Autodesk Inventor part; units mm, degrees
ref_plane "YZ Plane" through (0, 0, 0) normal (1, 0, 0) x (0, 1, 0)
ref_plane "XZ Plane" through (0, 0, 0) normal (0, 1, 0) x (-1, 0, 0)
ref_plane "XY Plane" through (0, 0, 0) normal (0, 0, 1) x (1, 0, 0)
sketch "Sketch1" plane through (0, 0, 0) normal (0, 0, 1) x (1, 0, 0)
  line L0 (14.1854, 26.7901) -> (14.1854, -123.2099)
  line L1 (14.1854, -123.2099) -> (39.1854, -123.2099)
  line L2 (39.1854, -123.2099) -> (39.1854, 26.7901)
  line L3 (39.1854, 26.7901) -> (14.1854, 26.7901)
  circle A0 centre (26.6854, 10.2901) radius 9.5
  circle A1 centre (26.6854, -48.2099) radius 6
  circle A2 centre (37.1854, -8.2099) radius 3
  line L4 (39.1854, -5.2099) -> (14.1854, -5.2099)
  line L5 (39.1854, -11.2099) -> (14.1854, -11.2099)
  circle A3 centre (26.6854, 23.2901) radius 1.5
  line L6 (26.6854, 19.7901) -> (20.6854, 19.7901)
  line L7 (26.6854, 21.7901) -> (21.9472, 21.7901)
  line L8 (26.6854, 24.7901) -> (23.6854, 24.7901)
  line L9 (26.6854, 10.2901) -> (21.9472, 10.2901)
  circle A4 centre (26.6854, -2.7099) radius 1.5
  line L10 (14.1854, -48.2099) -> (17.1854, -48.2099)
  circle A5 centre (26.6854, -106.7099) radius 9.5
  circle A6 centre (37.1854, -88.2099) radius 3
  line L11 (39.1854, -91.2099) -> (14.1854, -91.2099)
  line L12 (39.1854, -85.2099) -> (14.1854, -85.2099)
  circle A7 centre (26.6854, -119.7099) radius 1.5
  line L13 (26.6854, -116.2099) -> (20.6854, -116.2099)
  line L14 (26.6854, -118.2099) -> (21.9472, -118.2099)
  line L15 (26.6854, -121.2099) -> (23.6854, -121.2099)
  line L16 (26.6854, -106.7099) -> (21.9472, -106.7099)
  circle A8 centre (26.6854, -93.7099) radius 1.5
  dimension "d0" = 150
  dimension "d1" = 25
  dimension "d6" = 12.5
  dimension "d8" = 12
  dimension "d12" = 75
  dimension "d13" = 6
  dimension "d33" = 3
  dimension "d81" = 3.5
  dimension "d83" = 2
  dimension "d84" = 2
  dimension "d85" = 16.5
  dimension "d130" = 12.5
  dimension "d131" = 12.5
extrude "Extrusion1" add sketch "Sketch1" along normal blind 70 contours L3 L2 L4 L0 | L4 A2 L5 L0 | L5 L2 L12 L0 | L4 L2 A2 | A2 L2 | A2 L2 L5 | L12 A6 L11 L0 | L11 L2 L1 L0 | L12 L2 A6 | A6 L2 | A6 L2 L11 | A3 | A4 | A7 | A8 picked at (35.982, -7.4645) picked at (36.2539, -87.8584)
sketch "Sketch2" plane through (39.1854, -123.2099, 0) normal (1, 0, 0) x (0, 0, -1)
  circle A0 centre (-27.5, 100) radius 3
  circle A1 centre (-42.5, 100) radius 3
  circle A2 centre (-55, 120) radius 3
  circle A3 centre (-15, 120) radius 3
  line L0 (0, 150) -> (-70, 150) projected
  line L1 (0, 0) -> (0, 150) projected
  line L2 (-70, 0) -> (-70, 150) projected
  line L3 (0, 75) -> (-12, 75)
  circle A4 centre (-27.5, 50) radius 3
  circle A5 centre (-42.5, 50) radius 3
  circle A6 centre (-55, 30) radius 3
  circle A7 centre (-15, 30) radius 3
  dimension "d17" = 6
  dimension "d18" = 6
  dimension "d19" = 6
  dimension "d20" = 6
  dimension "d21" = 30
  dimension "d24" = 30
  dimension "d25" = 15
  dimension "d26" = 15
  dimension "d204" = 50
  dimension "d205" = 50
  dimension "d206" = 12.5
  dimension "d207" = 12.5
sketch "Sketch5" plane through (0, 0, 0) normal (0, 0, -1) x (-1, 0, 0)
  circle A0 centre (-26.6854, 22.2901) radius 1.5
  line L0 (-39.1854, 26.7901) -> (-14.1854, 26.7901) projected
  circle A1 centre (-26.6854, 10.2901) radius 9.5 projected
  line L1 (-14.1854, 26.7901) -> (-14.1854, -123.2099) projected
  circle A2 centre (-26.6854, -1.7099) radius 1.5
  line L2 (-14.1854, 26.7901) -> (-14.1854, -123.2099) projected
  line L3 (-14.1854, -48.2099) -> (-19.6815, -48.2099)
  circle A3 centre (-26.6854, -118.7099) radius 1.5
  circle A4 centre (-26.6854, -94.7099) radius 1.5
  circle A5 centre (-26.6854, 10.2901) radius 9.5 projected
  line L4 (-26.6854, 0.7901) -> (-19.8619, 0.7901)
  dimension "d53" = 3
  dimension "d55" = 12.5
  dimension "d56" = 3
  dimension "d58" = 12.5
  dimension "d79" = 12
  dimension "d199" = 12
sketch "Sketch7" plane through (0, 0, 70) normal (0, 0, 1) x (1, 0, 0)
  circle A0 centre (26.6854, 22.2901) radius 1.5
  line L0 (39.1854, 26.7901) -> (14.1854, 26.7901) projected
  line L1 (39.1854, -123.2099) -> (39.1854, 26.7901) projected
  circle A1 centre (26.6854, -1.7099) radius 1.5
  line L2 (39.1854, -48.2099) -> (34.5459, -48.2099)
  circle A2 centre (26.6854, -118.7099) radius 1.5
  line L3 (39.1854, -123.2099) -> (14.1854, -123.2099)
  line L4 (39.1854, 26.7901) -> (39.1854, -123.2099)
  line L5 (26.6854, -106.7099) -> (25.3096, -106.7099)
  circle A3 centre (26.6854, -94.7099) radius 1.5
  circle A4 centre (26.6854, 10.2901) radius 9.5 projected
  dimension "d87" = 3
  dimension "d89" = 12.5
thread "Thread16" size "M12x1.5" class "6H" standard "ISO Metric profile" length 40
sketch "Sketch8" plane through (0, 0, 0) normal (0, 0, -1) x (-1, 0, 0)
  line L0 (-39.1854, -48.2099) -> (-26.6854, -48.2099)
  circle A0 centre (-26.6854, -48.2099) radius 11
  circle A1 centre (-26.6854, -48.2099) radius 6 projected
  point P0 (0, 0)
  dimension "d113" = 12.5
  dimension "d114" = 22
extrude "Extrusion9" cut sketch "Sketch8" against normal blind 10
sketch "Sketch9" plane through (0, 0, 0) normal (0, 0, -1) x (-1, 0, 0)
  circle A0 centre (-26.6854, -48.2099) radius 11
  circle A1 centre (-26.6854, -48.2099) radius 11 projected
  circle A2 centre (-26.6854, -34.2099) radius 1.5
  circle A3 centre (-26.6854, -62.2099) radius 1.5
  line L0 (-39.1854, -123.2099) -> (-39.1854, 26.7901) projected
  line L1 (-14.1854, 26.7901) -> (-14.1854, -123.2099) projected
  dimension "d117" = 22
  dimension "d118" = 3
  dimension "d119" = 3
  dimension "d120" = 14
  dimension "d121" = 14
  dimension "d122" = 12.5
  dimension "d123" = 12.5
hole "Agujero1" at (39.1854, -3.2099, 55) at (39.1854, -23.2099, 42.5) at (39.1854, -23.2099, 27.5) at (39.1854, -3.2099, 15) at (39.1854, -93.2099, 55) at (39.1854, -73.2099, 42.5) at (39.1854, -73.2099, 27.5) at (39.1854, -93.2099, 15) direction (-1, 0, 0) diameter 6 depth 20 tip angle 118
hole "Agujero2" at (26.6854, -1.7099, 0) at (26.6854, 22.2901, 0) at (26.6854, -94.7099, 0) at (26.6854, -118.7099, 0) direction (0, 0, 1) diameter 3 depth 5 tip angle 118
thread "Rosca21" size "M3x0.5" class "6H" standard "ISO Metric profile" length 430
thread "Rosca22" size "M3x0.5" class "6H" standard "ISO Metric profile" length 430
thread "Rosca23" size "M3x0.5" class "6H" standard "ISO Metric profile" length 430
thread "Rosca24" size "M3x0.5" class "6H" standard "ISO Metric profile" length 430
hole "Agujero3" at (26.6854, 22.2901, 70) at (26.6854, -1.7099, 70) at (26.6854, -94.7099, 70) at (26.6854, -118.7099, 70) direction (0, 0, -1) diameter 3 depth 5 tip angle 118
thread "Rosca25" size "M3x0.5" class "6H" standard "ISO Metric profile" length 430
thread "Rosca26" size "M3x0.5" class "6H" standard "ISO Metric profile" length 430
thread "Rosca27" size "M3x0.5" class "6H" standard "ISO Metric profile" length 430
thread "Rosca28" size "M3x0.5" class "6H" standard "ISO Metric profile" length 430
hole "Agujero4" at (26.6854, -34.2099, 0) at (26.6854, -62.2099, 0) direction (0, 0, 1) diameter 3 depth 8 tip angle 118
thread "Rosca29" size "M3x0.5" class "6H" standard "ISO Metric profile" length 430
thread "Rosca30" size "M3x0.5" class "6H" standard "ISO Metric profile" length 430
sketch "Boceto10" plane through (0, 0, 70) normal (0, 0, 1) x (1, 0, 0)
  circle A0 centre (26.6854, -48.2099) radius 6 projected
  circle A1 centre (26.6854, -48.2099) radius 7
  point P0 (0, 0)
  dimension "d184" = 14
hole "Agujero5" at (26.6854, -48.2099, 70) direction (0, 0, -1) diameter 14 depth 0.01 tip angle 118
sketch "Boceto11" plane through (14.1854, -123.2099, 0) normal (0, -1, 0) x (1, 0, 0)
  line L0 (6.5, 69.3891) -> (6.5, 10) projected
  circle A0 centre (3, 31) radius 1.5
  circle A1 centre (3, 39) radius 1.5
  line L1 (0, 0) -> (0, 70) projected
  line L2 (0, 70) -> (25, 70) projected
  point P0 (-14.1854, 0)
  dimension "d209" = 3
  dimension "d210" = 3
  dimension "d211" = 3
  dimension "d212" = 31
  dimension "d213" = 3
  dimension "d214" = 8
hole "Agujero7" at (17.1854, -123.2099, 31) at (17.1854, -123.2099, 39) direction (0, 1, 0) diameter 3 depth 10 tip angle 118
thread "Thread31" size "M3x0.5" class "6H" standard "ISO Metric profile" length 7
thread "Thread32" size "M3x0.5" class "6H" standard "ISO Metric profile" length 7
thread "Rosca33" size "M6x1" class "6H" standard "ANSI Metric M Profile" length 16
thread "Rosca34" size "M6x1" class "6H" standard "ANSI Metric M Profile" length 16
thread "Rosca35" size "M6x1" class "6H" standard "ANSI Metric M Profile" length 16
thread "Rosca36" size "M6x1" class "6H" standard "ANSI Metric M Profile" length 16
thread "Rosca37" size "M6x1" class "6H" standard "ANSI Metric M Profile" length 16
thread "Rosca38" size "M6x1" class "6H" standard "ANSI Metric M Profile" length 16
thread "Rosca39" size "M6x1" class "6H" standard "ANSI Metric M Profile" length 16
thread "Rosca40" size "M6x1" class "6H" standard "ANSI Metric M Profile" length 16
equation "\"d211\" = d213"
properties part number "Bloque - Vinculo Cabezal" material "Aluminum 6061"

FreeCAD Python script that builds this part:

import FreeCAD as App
import Part
import Sketcher
Q = App.Units.Quantity


def add_polygon(sketch, points):
    """Adds a closed chain of lines whose ends are joined by coincident constraints."""
    first, n = sketch.GeometryCount, len(points)
    for a, b in zip(points, points[1:] + points[:1]):
        sketch.addGeometry(Part.LineSegment(App.Vector(*a, 0), App.Vector(*b, 0)), False)
    for i in range(n):
        sketch.addConstraint(Sketcher.Constraint("Coincident", first + i, 2, first + (i + 1) % n, 1))

doc = App.newDocument("Part")
body = doc.addObject("PartDesign::Body", "Body")

sketch1 = body.newObject("Sketcher::SketchObject", "Sketch")
sketch1.AttachmentSupport = (doc.getObject("XY_Plane"), [""])
sketch1.MapMode = "FlatFace"
add_polygon(sketch1, [(39, 27), (14, 27), (14, -123), (39, -123)])
sketch1.addGeometry(Part.Circle(App.Vector(27, 10, 0), App.Vector(0, 0, 1), 10), False)
sketch1.addGeometry(Part.Circle(App.Vector(27, -48, 0), App.Vector(0, 0, 1), 6), False)
sketch1.addGeometry(Part.Circle(App.Vector(27, -107, 0), App.Vector(0, 0, 1), 10), False)
sketch1.addConstraint(Sketcher.Constraint("Horizontal", 0))
sketch1.addConstraint(Sketcher.Constraint("Vertical", 1))
sketch1.addConstraint(Sketcher.Constraint("Horizontal", 2))
sketch1.addConstraint(Sketcher.Constraint("Vertical", 3))
sketch1.addConstraint(Sketcher.Constraint("Equal", 4, 6))
sketch1.addConstraint(Sketcher.Constraint("Vertical", 4, 3, 5, 3))
sketch1.addConstraint(Sketcher.Constraint("Vertical", 5, 3, 6, 3))
sketch1.addConstraint(Sketcher.Constraint("Diameter", 5, Q("12 mm")))
sketch1.addConstraint(Sketcher.Constraint("DistanceX", 0, 2, 0, 1, Q("25 mm")))
sketch1.addConstraint(Sketcher.Constraint("DistanceY", 1, 2, 1, 1, Q("150 mm")))
sketch1.addConstraint(Sketcher.Constraint("Diameter", 4, Q("19 mm")))
sketch1.addConstraint(Sketcher.Constraint("DistanceY", 5, 3, 0, 2, Q("75 mm")))
sketch1.addConstraint(Sketcher.Constraint("DistanceX", 0, 2, 4, 3, Q("12.5 mm")))
sketch1.addConstraint(Sketcher.Constraint("DistanceY", 4, 3, 0, 2, Q("16.5 mm")))
sketch1.addConstraint(Sketcher.Constraint("DistanceY", 1, 2, 6, 3, Q("16.5 mm")))
sketch1.addConstraint(Sketcher.Constraint("DistanceY", -1, 1, 4, 3, Q("10.29 mm")))
sketch1.addConstraint(Sketcher.Constraint("DistanceX", -1, 1, 4, 3, Q("26.6854 mm")))
pad1 = body.newObject("PartDesign::Pad", "Pad")
pad1.Profile = sketch1
pad1.Length = 70

sketch2 = body.newObject("Sketcher::SketchObject", "Sketch001")
sketch2.AttachmentSupport = (doc.getObject("XY_Plane"), [""])
sketch2.MapMode = "FlatFace"
sketch2.addGeometry(Part.Circle(App.Vector(27, -48, 0), App.Vector(0, 0, 1), 11), False)
sketch2.addGeometry(Part.Circle(App.Vector(27, -48, 0), App.Vector(0, 0, 1), 6), False)
sketch2.addConstraint(Sketcher.Constraint("Coincident", 1, 3, 0, 3))
sketch2.addConstraint(Sketcher.Constraint("Diameter", 0, Q("22 mm")))
sketch2.addConstraint(Sketcher.Constraint("Diameter", 1, Q("12 mm")))
sketch2.addConstraint(Sketcher.Constraint("DistanceY", 0, 3, -1, 1, Q("48.21 mm")))
sketch2.addConstraint(Sketcher.Constraint("DistanceX", -1, 1, 0, 3, Q("26.6854 mm")))
pocket1 = body.newObject("PartDesign::Pocket", "Pocket")
pocket1.Profile = sketch2
pocket1.Length = 10
pocket1.Reversed = True

sketch3 = body.newObject("Sketcher::SketchObject", "Sketch002")
sketch3.AttachmentSupport = (doc.getObject("YZ_Plane"), [""])
sketch3.MapMode = "FlatFace"
sketch3.AttachmentOffset = App.Placement(App.Vector(0, 0, 39.1854), App.Rotation())
sketch3.addGeometry(Part.Circle(App.Vector(-3.2, 55, 0), App.Vector(0, 0, 1), 3), False)
sketch3.addGeometry(Part.Circle(App.Vector(-23.2, 42.5, 0), App.Vector(0, 0, 1), 3), False)
sketch3.addGeometry(Part.Circle(App.Vector(-23.2, 27.5, 0), App.Vector(0, 0, 1), 3), False)
sketch3.addGeometry(Part.Circle(App.Vector(-3.2, 15, 0), App.Vector(0, 0, 1), 3), False)
sketch3.addGeometry(Part.Circle(App.Vector(-93.2, 55, 0), App.Vector(0, 0, 1), 3), False)
sketch3.addGeometry(Part.Circle(App.Vector(-73.2, 42.5, 0), App.Vector(0, 0, 1), 3), False)
sketch3.addGeometry(Part.Circle(App.Vector(-73.2, 27.5, 0), App.Vector(0, 0, 1), 3), False)
sketch3.addGeometry(Part.Circle(App.Vector(-93.2, 15, 0), App.Vector(0, 0, 1), 3), False)
sketch3.addConstraint(Sketcher.Constraint("Equal", 0, 1))
sketch3.addConstraint(Sketcher.Constraint("Equal", 1, 2))
sketch3.addConstraint(Sketcher.Constraint("Equal", 2, 3))
sketch3.addConstraint(Sketcher.Constraint("Equal", 3, 4))
sketch3.addConstraint(Sketcher.Constraint("Equal", 4, 5))
sketch3.addConstraint(Sketcher.Constraint("Equal", 5, 6))
sketch3.addConstraint(Sketcher.Constraint("Equal", 6, 7))
sketch3.addConstraint(Sketcher.Constraint("Horizontal", 0, 3, 4, 3))
sketch3.addConstraint(Sketcher.Constraint("Horizontal", 1, 3, 5, 3))
sketch3.addConstraint(Sketcher.Constraint("Horizontal", 2, 3, 6, 3))
sketch3.addConstraint(Sketcher.Constraint("Horizontal", 3, 3, 7, 3))
sketch3.addConstraint(Sketcher.Constraint("Vertical", 1, 3, 2, 3))
sketch3.addConstraint(Sketcher.Constraint("Vertical", 0, 3, 3, 3))
sketch3.addConstraint(Sketcher.Constraint("Vertical", 5, 3, 6, 3))
sketch3.addConstraint(Sketcher.Constraint("Vertical", 4, 3, 7, 3))
sketch3.addConstraint(Sketcher.Constraint("Diameter", 0, Q("6 mm")))
sketch3.addConstraint(Sketcher.Constraint("DistanceY", -1, 1, 0, 3, Q("55 mm")))
sketch3.addConstraint(Sketcher.Constraint("DistanceY", -1, 1, 3, 3, Q("15 mm")))
sketch3.addConstraint(Sketcher.Constraint("DistanceX", 1, 3, 0, 3, Q("20 mm")))
sketch3.addConstraint(Sketcher.Constraint("DistanceY", 2, 3, 1, 3, Q("15 mm")))
sketch3.addConstraint(Sketcher.Constraint("DistanceX", 4, 3, 1, 3, Q("70 mm")))
sketch3.addConstraint(Sketcher.Constraint("DistanceX", 4, 3, 5, 3, Q("20 mm")))
sketch3.addConstraint(Sketcher.Constraint("DistanceY", -1, 1, 1, 3, Q("42.5 mm")))
sketch3.addConstraint(Sketcher.Constraint("DistanceX", 0, 3, -1, 1, Q("3.21 mm")))
doc.recompute()
hole = body.newObject("PartDesign::Hole", "Hole")
hole.Profile = sketch3
hole.ThreadType = "None"
hole.Diameter = 6
hole.DepthType = "Dimension"
hole.Depth = 20
hole.DrillPoint = "Angled"
hole.DrillPointAngle = 118

sketch4 = body.newObject("Sketcher::SketchObject", "Sketch003")
sketch4.AttachmentSupport = (doc.getObject("XY_Plane"), [""])
sketch4.MapMode = "FlatFace"
sketch4.addGeometry(Part.Circle(App.Vector(26.7, -1.7, 0), App.Vector(0, 0, 1), 1.5), False)
sketch4.addGeometry(Part.Circle(App.Vector(26.7, 22.3, 0), App.Vector(0, 0, 1), 1.5), False)
sketch4.addGeometry(Part.Circle(App.Vector(26.7, -94.7, 0), App.Vector(0, 0, 1), 1.5), False)
sketch4.addGeometry(Part.Circle(App.Vector(26.7, -118.7, 0), App.Vector(0, 0, 1), 1.5), False)
sketch4.addConstraint(Sketcher.Constraint("Equal", 0, 1))
sketch4.addConstraint(Sketcher.Constraint("Equal", 1, 2))
sketch4.addConstraint(Sketcher.Constraint("Equal", 2, 3))
sketch4.addConstraint(Sketcher.Constraint("Vertical", 0, 3, 1, 3))
sketch4.addConstraint(Sketcher.Constraint("Vertical", 1, 3, 2, 3))
sketch4.addConstraint(Sketcher.Constraint("Vertical", 2, 3, 3, 3))
sketch4.addConstraint(Sketcher.Constraint("Diameter", 0, Q("3 mm")))
sketch4.addConstraint(Sketcher.Constraint("DistanceY", 0, 3, 1, 3, Q("24 mm")))
sketch4.addConstraint(Sketcher.Constraint("DistanceY", 2, 3, 0, 3, Q("93 mm")))
sketch4.addConstraint(Sketcher.Constraint("DistanceY", 3, 3, 2, 3, Q("24 mm")))
sketch4.addConstraint(Sketcher.Constraint("DistanceY", 0, 3, -1, 1, Q("1.71 mm")))
sketch4.addConstraint(Sketcher.Constraint("DistanceX", -1, 1, 0, 3, Q("26.6854 mm")))
doc.recompute()
hole2 = body.newObject("PartDesign::Hole", "Hole001")
hole2.Profile = sketch4
hole2.ThreadType = "None"
hole2.Diameter = 3
hole2.DepthType = "Dimension"
hole2.Depth = 5
hole2.DrillPoint = "Angled"
hole2.DrillPointAngle = 118
hole2.Reversed = True

sketch5 = body.newObject("Sketcher::SketchObject", "Sketch004")
sketch5.AttachmentSupport = (doc.getObject("XY_Plane"), [""])
sketch5.MapMode = "FlatFace"
sketch5.AttachmentOffset = App.Placement(App.Vector(0, 0, 70), App.Rotation())
sketch5.addGeometry(Part.Circle(App.Vector(26.7, 22.3, 0), App.Vector(0, 0, 1), 1.5), False)
sketch5.addGeometry(Part.Circle(App.Vector(26.7, -1.7, 0), App.Vector(0, 0, 1), 1.5), False)
sketch5.addGeometry(Part.Circle(App.Vector(26.7, -94.7, 0), App.Vector(0, 0, 1), 1.5), False)
sketch5.addGeometry(Part.Circle(App.Vector(26.7, -118.7, 0), App.Vector(0, 0, 1), 1.5), False)
sketch5.addConstraint(Sketcher.Constraint("Equal", 0, 1))
sketch5.addConstraint(Sketcher.Constraint("Equal", 1, 2))
sketch5.addConstraint(Sketcher.Constraint("Equal", 2, 3))
sketch5.addConstraint(Sketcher.Constraint("Vertical", 0, 3, 1, 3))
sketch5.addConstraint(Sketcher.Constraint("Vertical", 1, 3, 2, 3))
sketch5.addConstraint(Sketcher.Constraint("Vertical", 2, 3, 3, 3))
sketch5.addConstraint(Sketcher.Constraint("Diameter", 0, Q("3 mm")))
sketch5.addConstraint(Sketcher.Constraint("DistanceY", 1, 3, 0, 3, Q("24 mm")))
sketch5.addConstraint(Sketcher.Constraint("DistanceY", 2, 3, 1, 3, Q("93 mm")))
sketch5.addConstraint(Sketcher.Constraint("DistanceY", 3, 3, 2, 3, Q("24 mm")))
sketch5.addConstraint(Sketcher.Constraint("DistanceY", -1, 1, 0, 3, Q("22.29 mm")))
sketch5.addConstraint(Sketcher.Constraint("DistanceX", -1, 1, 0, 3, Q("26.6854 mm")))
doc.recompute()
hole3 = body.newObject("PartDesign::Hole", "Hole002")
hole3.Profile = sketch5
hole3.ThreadType = "None"
hole3.Diameter = 3
hole3.DepthType = "Dimension"
hole3.Depth = 5
hole3.DrillPoint = "Angled"
hole3.DrillPointAngle = 118

sketch6 = body.newObject("Sketcher::SketchObject", "Sketch005")
sketch6.AttachmentSupport = (doc.getObject("XY_Plane"), [""])
sketch6.MapMode = "FlatFace"
sketch6.addGeometry(Part.Circle(App.Vector(26.7, -34.2, 0), App.Vector(0, 0, 1), 1.5), False)
sketch6.addGeometry(Part.Circle(App.Vector(26.7, -62.2, 0), App.Vector(0, 0, 1), 1.5), False)
sketch6.addConstraint(Sketcher.Constraint("Equal", 0, 1))
sketch6.addConstraint(Sketcher.Constraint("Vertical", 0, 3, 1, 3))
sketch6.addConstraint(Sketcher.Constraint("Diameter", 0, Q("3 mm")))
sketch6.addConstraint(Sketcher.Constraint("DistanceY", 1, 3, 0, 3, Q("28 mm")))
sketch6.addConstraint(Sketcher.Constraint("DistanceY", 0, 3, -1, 1, Q("34.21 mm")))
sketch6.addConstraint(Sketcher.Constraint("DistanceX", -1, 1, 0, 3, Q("26.6854 mm")))
doc.recompute()
hole4 = body.newObject("PartDesign::Hole", "Hole003")
hole4.Profile = sketch6
hole4.ThreadType = "None"
hole4.Diameter = 3
hole4.DepthType = "Dimension"
hole4.Depth = 8
hole4.DrillPoint = "Angled"
hole4.DrillPointAngle = 118
hole4.Reversed = True

sketch7 = body.newObject("Sketcher::SketchObject", "Sketch006")
sketch7.AttachmentSupport = (doc.getObject("XY_Plane"), [""])
sketch7.MapMode = "FlatFace"
sketch7.AttachmentOffset = App.Placement(App.Vector(0, 0, 70), App.Rotation())
sketch7.addGeometry(Part.Circle(App.Vector(27, -48, 0), App.Vector(0, 0, 1), 7), False)
sketch7.addConstraint(Sketcher.Constraint("Diameter", 0, Q("14 mm")))
sketch7.addConstraint(Sketcher.Constraint("DistanceY", 0, 3, -1, 1, Q("48.21 mm")))
sketch7.addConstraint(Sketcher.Constraint("DistanceX", -1, 1, 0, 3, Q("26.6854 mm")))
doc.recompute()
hole5 = body.newObject("PartDesign::Hole", "Hole004")
hole5.Profile = sketch7
hole5.ThreadType = "None"
hole5.Diameter = 14
hole5.DepthType = "Dimension"
hole5.Depth = 0.01
hole5.DrillPoint = "Angled"
hole5.DrillPointAngle = 118

sketch8 = body.newObject("Sketcher::SketchObject", "Sketch007")
sketch8.AttachmentSupport = (doc.getObject("XZ_Plane"), [""])
sketch8.MapMode = "FlatFace"
sketch8.AttachmentOffset = App.Placement(App.Vector(0, 0, 123.2099), App.Rotation())
sketch8.addGeometry(Part.Circle(App.Vector(17.2, 31, 0), App.Vector(0, 0, 1), 1.5), False)
sketch8.addGeometry(Part.Circle(App.Vector(17.2, 39, 0), App.Vector(0, 0, 1), 1.5), False)
sketch8.addConstraint(Sketcher.Constraint("Equal", 0, 1))
sketch8.addConstraint(Sketcher.Constraint("Vertical", 0, 3, 1, 3))
sketch8.addConstraint(Sketcher.Constraint("Diameter", 0, Q("3 mm")))
sketch8.addConstraint(Sketcher.Constraint("DistanceY", -1, 1, 0, 3, Q("31 mm")))
sketch8.addConstraint(Sketcher.Constraint("DistanceY", -1, 1, 1, 3, Q("39 mm")))
sketch8.addConstraint(Sketcher.Constraint("DistanceX", -1, 1, 0, 3, Q("17.1854 mm")))
doc.recompute()
hole6 = body.newObject("PartDesign::Hole", "Hole005")
hole6.Profile = sketch8
hole6.ThreadType = "None"
hole6.Diameter = 3
hole6.DepthType = "Dimension"
hole6.Depth = 10
hole6.DrillPoint = "Angled"
hole6.DrillPointAngle = 118

doc.recompute()
